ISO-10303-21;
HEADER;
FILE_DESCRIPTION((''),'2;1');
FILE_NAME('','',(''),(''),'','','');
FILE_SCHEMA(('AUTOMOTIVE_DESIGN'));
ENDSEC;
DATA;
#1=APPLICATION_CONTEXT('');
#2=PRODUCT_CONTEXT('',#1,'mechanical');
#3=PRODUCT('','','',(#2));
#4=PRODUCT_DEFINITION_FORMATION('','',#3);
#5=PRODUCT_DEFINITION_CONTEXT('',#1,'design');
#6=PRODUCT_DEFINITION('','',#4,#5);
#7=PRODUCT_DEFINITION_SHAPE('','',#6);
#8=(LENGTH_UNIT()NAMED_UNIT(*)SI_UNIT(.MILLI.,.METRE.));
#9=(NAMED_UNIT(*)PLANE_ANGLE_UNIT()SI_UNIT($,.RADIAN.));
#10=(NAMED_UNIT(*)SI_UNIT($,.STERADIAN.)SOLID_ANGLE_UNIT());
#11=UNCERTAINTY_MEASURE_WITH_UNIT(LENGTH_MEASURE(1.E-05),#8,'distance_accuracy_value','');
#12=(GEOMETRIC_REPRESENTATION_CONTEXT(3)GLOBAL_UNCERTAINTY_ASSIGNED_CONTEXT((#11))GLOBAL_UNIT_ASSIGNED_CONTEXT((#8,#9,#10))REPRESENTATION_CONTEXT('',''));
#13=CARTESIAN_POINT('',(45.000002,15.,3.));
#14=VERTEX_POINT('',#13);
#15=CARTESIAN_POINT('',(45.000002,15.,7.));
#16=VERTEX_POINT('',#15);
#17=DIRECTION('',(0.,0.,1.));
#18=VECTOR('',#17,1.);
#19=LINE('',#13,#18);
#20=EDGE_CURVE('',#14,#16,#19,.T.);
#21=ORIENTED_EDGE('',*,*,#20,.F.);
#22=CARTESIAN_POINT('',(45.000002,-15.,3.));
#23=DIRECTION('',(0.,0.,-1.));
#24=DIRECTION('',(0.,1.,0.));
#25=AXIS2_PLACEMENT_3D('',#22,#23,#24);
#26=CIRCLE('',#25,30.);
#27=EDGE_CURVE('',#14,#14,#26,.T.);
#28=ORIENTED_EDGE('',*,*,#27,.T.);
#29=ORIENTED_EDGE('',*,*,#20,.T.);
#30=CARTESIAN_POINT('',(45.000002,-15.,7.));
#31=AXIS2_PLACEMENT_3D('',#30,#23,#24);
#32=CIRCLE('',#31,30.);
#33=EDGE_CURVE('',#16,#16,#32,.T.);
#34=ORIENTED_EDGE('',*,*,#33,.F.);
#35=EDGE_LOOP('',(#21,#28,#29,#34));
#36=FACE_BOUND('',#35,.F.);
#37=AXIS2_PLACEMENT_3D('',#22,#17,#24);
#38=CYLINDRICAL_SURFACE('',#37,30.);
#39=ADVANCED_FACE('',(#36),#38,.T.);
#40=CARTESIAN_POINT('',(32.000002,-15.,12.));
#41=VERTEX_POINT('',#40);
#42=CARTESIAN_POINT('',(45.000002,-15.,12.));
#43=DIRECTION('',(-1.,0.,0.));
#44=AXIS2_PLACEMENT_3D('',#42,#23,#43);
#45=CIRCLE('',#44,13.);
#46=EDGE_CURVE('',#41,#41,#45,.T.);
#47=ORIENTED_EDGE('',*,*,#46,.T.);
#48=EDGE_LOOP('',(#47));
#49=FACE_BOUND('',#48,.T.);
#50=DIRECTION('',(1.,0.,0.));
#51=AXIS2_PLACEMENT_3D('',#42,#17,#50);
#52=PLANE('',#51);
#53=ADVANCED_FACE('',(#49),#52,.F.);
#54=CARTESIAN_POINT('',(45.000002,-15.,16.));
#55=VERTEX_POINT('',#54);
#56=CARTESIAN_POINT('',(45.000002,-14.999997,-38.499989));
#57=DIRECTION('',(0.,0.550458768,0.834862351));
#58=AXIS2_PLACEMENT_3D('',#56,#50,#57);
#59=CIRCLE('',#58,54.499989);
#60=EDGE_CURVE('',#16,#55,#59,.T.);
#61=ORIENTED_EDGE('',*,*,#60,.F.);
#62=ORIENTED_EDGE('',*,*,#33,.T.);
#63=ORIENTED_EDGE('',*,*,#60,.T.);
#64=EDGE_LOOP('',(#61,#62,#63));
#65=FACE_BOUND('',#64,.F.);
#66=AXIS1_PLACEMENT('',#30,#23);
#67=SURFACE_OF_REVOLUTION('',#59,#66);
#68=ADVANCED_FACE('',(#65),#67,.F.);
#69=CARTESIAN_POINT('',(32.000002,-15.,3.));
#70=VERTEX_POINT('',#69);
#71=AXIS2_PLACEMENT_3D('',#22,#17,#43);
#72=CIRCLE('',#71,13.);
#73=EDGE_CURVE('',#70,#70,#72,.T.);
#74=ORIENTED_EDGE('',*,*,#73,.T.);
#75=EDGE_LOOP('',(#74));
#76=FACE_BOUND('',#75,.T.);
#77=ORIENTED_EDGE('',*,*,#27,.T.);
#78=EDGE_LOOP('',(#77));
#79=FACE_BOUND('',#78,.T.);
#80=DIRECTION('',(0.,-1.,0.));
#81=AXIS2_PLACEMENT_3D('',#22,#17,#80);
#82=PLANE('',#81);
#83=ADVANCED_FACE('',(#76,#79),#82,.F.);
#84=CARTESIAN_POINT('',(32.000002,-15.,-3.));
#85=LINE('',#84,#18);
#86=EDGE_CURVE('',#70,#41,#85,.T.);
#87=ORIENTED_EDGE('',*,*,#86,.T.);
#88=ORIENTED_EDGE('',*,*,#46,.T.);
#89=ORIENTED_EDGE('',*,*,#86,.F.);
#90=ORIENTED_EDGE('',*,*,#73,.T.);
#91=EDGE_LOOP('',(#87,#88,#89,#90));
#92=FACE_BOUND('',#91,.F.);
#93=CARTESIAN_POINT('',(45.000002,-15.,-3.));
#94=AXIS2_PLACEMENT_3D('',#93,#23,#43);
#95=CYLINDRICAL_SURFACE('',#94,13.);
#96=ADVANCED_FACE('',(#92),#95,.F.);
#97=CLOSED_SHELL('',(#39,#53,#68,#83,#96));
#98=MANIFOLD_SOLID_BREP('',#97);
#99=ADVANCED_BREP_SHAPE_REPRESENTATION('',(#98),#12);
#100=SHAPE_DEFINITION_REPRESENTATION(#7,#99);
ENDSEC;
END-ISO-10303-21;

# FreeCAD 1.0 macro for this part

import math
import FreeCAD as App
import Part
import Sketcher
from FreeCAD import Vector
Q = App.Units.Quantity

doc = App.newDocument("Part")
body = doc.addObject("PartDesign::Body", "Body")

sketch1 = body.newObject("Sketcher::SketchObject", "Sketch")
sketch1.AttachmentSupport = (doc.getObject("XY_Plane"), [""])
sketch1.MapMode = "FlatFace"
sketch1.AttachmentOffset = App.Placement(Vector(0, 0, -3), App.Rotation())
sketch1.addGeometry(Part.Circle(Vector(-45, -15, 0), Vector(0, 0, 1), 13), False)
sketch1.addConstraint([
    Sketcher.Constraint("Diameter", 0, Q("26 mm")),
    Sketcher.Constraint("DistanceX", 0, 3, -1, 1, Q("45 mm")),
    Sketcher.Constraint("DistanceY", 0, 3, -1, 1, Q("15 mm")),
])
pad1 = body.newObject("PartDesign::Pad", "Pad")
pad1.Profile = sketch1
pad1.Length = 15
body2 = doc.addObject("PartDesign::Body", "Body001")

sketch2 = body2.newObject("Sketcher::SketchObject", "Sketch001")
sketch2.AttachmentSupport = (doc.getObject("YZ_Plane001"), [""])
sketch2.MapMode = "FlatFace"
sketch2.addGeometry([
    Part.LineSegment(Vector(30, -4, 0), Vector(30, 0, 0)),
    Part.ArcOfCircle(Part.Circle(Vector(0, -45.5, 0), Vector(0, 0, 1), 54.5), math.radians(57), math.radians(90)),
    Part.LineSegment(Vector(0, 9, 0), Vector(0, -4, 0)),
    Part.LineSegment(Vector(0, -4, 0), Vector(30, -4, 0)),
], False)
sketch2.addConstraint([
    Sketcher.Constraint("Coincident", 0, 2, 1, 1),
    Sketcher.Constraint("Coincident", 1, 2, 2, 1),
    Sketcher.Constraint("Coincident", 2, 2, 3, 1),
    Sketcher.Constraint("Coincident", 3, 2, 0, 1),
    Sketcher.Constraint("Vertical", 0),
    Sketcher.Constraint("Vertical", 2),
    Sketcher.Constraint("Horizontal", 3),
    Sketcher.Constraint("PointOnObject", 0, 2, -1),
    Sketcher.Constraint("PointOnObject", 1, 2, -2),
    Sketcher.Constraint("DistanceX", 3, 1, 3, 2, Q("30 mm")),
    Sketcher.Constraint("DistanceY", 0, 1, 0, 2, Q("4 mm")),
    Sketcher.Constraint("DistanceY", 2, 2, 2, 1, Q("13 mm")),
    Sketcher.Constraint("Radius", 1, Q("54.499989 mm")),
])
revolution = body2.newObject("PartDesign::Revolution", "Revolution")
revolution.Profile = sketch2
revolution.ReferenceAxis = (sketch2, ["V_Axis"])
revolution.Angle = 360
body3 = doc.addObject("PartDesign::Body", "Body002")
doc.recompute()

body2.Placement = App.Placement(Vector(-45, -15, 7), App.Rotation(Vector(0, 0, 1), 0))
boolean = body3.newObject("PartDesign::Boolean", "Boolean")
boolean.Type = "Fuse"
boolean.addObjects([body2])
doc.recompute()

boolean2 = body3.newObject("PartDesign::Boolean", "Boolean001")
boolean2.Type = "Cut"
boolean2.addObjects([body])
body4 = doc.addObject("PartDesign::Body", "Body003")
doc.recompute()

mirroring = doc.addObject("Part::Mirroring", "Mirroring")
mirroring.Source = body3
mirroring.Base = Vector(0.000001, -15, 8.5)
mirroring.Normal = Vector(1, 0, 0)
body4.BaseFeature = mirroring
doc.recompute()
body3.Visibility = False
mirroring.Visibility = False

doc.recompute()
